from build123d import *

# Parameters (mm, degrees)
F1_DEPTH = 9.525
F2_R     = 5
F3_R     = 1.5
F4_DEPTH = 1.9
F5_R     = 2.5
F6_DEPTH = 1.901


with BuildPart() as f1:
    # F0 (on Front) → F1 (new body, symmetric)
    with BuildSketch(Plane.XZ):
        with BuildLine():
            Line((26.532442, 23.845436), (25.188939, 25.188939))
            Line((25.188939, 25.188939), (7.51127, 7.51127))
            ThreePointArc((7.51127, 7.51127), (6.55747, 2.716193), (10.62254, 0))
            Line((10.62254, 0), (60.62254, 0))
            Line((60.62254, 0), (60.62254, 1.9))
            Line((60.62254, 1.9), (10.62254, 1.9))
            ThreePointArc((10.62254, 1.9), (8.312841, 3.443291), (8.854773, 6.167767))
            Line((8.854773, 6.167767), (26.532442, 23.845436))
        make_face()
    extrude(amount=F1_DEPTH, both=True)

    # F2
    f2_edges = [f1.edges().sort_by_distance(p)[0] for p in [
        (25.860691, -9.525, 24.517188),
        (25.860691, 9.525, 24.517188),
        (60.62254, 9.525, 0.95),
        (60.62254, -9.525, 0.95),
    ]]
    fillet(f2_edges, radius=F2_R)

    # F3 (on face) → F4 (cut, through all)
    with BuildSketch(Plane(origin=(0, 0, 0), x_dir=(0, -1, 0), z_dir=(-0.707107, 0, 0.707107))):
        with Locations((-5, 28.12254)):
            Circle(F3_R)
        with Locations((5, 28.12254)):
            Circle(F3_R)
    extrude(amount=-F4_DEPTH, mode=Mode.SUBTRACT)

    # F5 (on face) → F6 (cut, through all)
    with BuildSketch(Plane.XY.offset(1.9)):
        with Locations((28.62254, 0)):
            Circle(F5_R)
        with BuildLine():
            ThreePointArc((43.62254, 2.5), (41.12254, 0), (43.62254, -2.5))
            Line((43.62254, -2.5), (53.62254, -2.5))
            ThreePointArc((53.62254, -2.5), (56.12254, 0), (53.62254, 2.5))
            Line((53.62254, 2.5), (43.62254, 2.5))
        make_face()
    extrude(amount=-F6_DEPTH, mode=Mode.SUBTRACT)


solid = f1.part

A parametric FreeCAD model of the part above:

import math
import FreeCAD as App
import Part
import Sketcher
from FreeCAD import Vector
Q = App.Units.Quantity


def edges_at(feature, points):
    """Names of the edges that pass closest to the given points."""
    edges = feature.Shape.Edges
    near = lambda p: min(range(len(edges)), key=lambda i: edges[i].distToShape(Part.Vertex(*p))[0])
    return sorted({f"Edge{near(p) + 1}" for p in points})

doc = App.newDocument("Part")
body = doc.addObject("PartDesign::Body", "Body")

sketch1 = body.newObject("Sketcher::SketchObject", "Sketch")
sketch1.AttachmentSupport = (doc.getObject("XZ_Plane"), [""])
sketch1.MapMode = "FlatFace"
sketch1.addGeometry(Part.LineSegment(Vector(26.5, 23.8, 0), Vector(25.2, 25.2, 0)), False)
sketch1.addGeometry(Part.LineSegment(Vector(25.2, 25.2, 0), Vector(7.5, 7.5, 0)), False)
sketch1.addGeometry(Part.ArcOfCircle(Part.Circle(Vector(10.6, 4.4, 0), Vector(0, 0, 1), 4.4), math.radians(135), math.radians(270)), False)
sketch1.addGeometry(Part.LineSegment(Vector(10.6, 0, 0), Vector(60.6, 0, 0)), False)
sketch1.addGeometry(Part.LineSegment(Vector(60.6, 0, 0), Vector(60.6, 1.9, 0)), False)
sketch1.addGeometry(Part.LineSegment(Vector(60.6, 1.9, 0), Vector(10.6, 1.9, 0)), False)
sketch1.addGeometry(Part.ArcOfCircle(Part.Circle(Vector(10.6, 4.4, 0), Vector(0, 0, 1), 2.5), math.radians(135), math.radians(270)), False)
sketch1.addGeometry(Part.LineSegment(Vector(8.9, 6.2, 0), Vector(26.5, 23.8, 0)), False)
sketch1.addConstraint(Sketcher.Constraint("Coincident", 0, 2, 1, 1))
sketch1.addConstraint(Sketcher.Constraint("Tangent", 1, 2, 2, 1))
sketch1.addConstraint(Sketcher.Constraint("Tangent", 2, 2, 3, 1))
sketch1.addConstraint(Sketcher.Constraint("Coincident", 3, 2, 4, 1))
sketch1.addConstraint(Sketcher.Constraint("Coincident", 4, 2, 5, 1))
sketch1.addConstraint(Sketcher.Constraint("Tangent", 5, 2, 6, 2))
sketch1.addConstraint(Sketcher.Constraint("Tangent", 6, 1, 7, 1))
sketch1.addConstraint(Sketcher.Constraint("Coincident", 7, 2, 0, 1))
sketch1.addConstraint(Sketcher.Constraint("Horizontal", 3))
sketch1.addConstraint(Sketcher.Constraint("Vertical", 4))
sketch1.addConstraint(Sketcher.Constraint("Horizontal", 5))
sketch1.addConstraint(Sketcher.Constraint("Coincident", 6, 3, 2, 3))
sketch1.addConstraint(Sketcher.Constraint("PointOnObject", 2, 2, -1))
sketch1.addConstraint(Sketcher.Constraint("Perpendicular", 0, 1))
sketch1.addConstraint(Sketcher.Constraint("Parallel", 1, 7))
sketch1.addConstraint(Sketcher.Constraint("Radius", 2, Q("4.4 mm")))
sketch1.addConstraint(Sketcher.Constraint("Radius", 6, Q("2.5 mm")))
sketch1.addConstraint(Sketcher.Constraint("DistanceX", 3, 1, 3, 2, Q("50 mm")))
sketch1.addConstraint(Sketcher.Constraint("Angle", 0, Q("135 deg")))
sketch1.addConstraint(Sketcher.Constraint("Distance", 1, Q("24.999999 mm")))
sketch1.addConstraint(Sketcher.Constraint("DistanceX", -1, 1, 2, 3, Q("10.62254 mm")))
pad1 = body.newObject("PartDesign::Pad", "Pad")
pad1.Profile = sketch1
pad1.Length = 19.05
pad1.Midplane = True
doc.recompute()

fillet = body.newObject("PartDesign::Fillet", "Fillet")
fillet.Base = (pad1, edges_at(pad1, [
    (25.861, -9.525, 24.517),
    (25.861, 9.525, 24.517),
    (60.623, 9.525, 0.95),
    (60.623, -9.525, 0.95),
]))
fillet.Radius = 5

sketch2 = body.newObject("Sketcher::SketchObject", "Sketch001")
sketch2.Placement = App.Placement(Vector(0, 0, 0), App.Rotation(Vector(0, -1, 0), Vector(0.707106781, 0, 0.707106781), Vector(-0.707106781, 0, 0.707106781), "ZXY"))
sketch2.addGeometry(Part.Circle(Vector(-5, 28.1, 0), Vector(0, 0, 1), 1.5), False)
sketch2.addGeometry(Part.Circle(Vector(5, 28.1, 0), Vector(0, 0, 1), 1.5), False)
sketch2.addConstraint(Sketcher.Constraint("Equal", 0, 1))
sketch2.addConstraint(Sketcher.Constraint("Symmetric", 0, 3, 1, 3, -2))
sketch2.addConstraint(Sketcher.Constraint("Diameter", 0, Q("3 mm")))
sketch2.addConstraint(Sketcher.Constraint("DistanceX", 0, 3, -1, 1, Q("5 mm")))
sketch2.addConstraint(Sketcher.Constraint("DistanceY", -1, 1, 0, 3, Q("28.12254 mm")))
pocket1 = body.newObject("PartDesign::Pocket", "Pocket")
pocket1.Profile = sketch2
pocket1.Length = 1.9

sketch3 = body.newObject("Sketcher::SketchObject", "Sketch002")
sketch3.AttachmentSupport = (doc.getObject("XY_Plane"), [""])
sketch3.MapMode = "FlatFace"
sketch3.AttachmentOffset = App.Placement(Vector(0, 0, 1.9), App.Rotation())
sketch3.addGeometry(Part.Circle(Vector(28.6, 0, 0), Vector(0, 0, 1), 2.5), False)
sketch3.addGeometry(Part.ArcOfCircle(Part.Circle(Vector(43.6, 0, 0), Vector(0, 0, 1), 2.5), math.radians(90), math.radians(270)), False)
sketch3.addGeometry(Part.LineSegment(Vector(43.6, -2.5, 0), Vector(53.6, -2.5, 0)), False)
sketch3.addGeometry(Part.ArcOfCircle(Part.Circle(Vector(53.6, 0, 0), Vector(0, 0, 1), 2.5), math.radians(-90), math.radians(90)), False)
sketch3.addGeometry(Part.LineSegment(Vector(53.6, 2.5, 0), Vector(43.6, 2.5, 0)), False)
sketch3.addConstraint(Sketcher.Constraint("Tangent", 1, 2, 2, 1))
sketch3.addConstraint(Sketcher.Constraint("Tangent", 2, 2, 3, 1))
sketch3.addConstraint(Sketcher.Constraint("Tangent", 3, 2, 4, 1))
sketch3.addConstraint(Sketcher.Constraint("Tangent", 4, 2, 1, 1))
sketch3.addConstraint(Sketcher.Constraint("Horizontal", 2))
sketch3.addConstraint(Sketcher.Constraint("Horizontal", 4))
sketch3.addConstraint(Sketcher.Constraint("Equal", 0, 1))
sketch3.addConstraint(Sketcher.Constraint("PointOnObject", 0, 3, -1))
sketch3.addConstraint(Sketcher.Constraint("PointOnObject", 1, 3, -1))
sketch3.addConstraint(Sketcher.Constraint("Diameter", 0, Q("5 mm")))
sketch3.addConstraint(Sketcher.Constraint("DistanceX", 2, 1, 2, 2, Q("10 mm")))
sketch3.addConstraint(Sketcher.Constraint("DistanceX", 0, 3, 1, 3, Q("15 mm")))
sketch3.addConstraint(Sketcher.Constraint("DistanceX", -1, 1, 0, 3, Q("28.62254 mm")))
pocket2 = body.newObject("PartDesign::Pocket", "Pocket001")
pocket2.Profile = sketch3
pocket2.Type = "ThroughAll"

doc.recompute()
